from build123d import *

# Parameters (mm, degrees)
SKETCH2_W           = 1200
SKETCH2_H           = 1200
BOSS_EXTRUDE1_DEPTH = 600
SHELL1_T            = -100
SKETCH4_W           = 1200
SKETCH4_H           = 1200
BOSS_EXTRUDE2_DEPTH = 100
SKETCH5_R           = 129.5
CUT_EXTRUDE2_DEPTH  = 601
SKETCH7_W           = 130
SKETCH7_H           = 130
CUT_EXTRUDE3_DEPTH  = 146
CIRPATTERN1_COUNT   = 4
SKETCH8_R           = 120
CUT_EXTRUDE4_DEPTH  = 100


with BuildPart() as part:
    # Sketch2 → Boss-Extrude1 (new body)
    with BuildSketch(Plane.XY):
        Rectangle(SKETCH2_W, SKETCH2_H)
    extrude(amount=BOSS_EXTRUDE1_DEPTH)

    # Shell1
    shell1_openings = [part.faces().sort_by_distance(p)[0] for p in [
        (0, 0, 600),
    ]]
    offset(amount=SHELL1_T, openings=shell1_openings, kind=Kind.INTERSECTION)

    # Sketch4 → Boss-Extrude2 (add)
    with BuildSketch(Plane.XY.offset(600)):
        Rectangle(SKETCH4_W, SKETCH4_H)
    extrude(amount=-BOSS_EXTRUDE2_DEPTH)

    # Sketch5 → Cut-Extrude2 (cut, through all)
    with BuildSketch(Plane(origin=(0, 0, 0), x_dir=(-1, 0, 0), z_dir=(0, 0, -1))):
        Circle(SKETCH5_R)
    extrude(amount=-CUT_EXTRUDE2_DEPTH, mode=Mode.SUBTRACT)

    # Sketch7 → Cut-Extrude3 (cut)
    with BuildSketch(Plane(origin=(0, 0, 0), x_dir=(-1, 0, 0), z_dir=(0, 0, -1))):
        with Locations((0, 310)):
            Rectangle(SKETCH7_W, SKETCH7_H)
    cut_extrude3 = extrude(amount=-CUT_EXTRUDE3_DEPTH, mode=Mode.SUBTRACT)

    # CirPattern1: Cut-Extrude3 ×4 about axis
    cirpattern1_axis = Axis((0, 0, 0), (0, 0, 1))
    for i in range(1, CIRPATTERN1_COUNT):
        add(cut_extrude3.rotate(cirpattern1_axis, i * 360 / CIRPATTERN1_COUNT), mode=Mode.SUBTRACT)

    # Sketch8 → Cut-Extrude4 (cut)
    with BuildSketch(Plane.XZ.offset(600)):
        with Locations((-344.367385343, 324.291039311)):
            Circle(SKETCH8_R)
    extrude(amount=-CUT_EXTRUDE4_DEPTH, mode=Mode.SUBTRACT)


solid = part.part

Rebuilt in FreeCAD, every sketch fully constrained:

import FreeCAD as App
import Part
import Sketcher

V = App.Vector


def faces_at(feature, points):
    """Names of the faces that lie closest to the given points."""
    faces = feature.Shape.Faces
    near = lambda p: min(range(len(faces)), key=lambda i: faces[i].distToShape(Part.Vertex(*p))[0])
    return sorted({f"Face{near(p) + 1}" for p in points})

doc = App.newDocument("Part")
body = doc.addObject("PartDesign::Body", "Body")

# Sketch on XY plane
sketch1 = body.newObject("Sketcher::SketchObject", "Sketch")
sketch1.AttachmentSupport = (doc.getObject("XY_Plane"), [""])
sketch1.MapMode = "FlatFace"
sketch1.addGeometry(Part.LineSegment(V(-600, 600, 0), V(-600, -600, 0)), False)
sketch1.addGeometry(Part.LineSegment(V(-600, -600, 0), V(600, -600, 0)), False)
sketch1.addGeometry(Part.LineSegment(V(600, -600, 0), V(600, 600, 0)), False)
sketch1.addGeometry(Part.LineSegment(V(600, 600, 0), V(-600, 600, 0)), False)
sketch1.addConstraint(Sketcher.Constraint("Coincident", 0, 2, 1, 1))
sketch1.addConstraint(Sketcher.Constraint("Coincident", 1, 2, 2, 1))
sketch1.addConstraint(Sketcher.Constraint("Coincident", 2, 2, 3, 1))
sketch1.addConstraint(Sketcher.Constraint("Coincident", 3, 2, 0, 1))
sketch1.addConstraint(Sketcher.Constraint("Vertical", 0))
sketch1.addConstraint(Sketcher.Constraint("Horizontal", 1))
sketch1.addConstraint(Sketcher.Constraint("Vertical", 2))
sketch1.addConstraint(Sketcher.Constraint("Horizontal", 3))
sketch1.addConstraint(Sketcher.Constraint("Symmetric", 0, 2, 2, 2, -1, 1))
sketch1.addConstraint(Sketcher.Constraint("Equal", 3, 0))
sketch1.addConstraint(Sketcher.Constraint("DistanceX", 1, 1, 1, 2, 1200.0))
pad1 = body.newObject("PartDesign::Pad", "Pad")
pad1.Profile = sketch1
pad1.Length = 600
doc.recompute()

thickness = body.newObject("PartDesign::Thickness", "Thickness")
thickness.Base = (pad1, faces_at(pad1, [(0, 0, 600)]))
thickness.Value = 100
thickness.Reversed = True
thickness.Join = "Intersection"

# Sketch on XY plane
sketch2 = body.newObject("Sketcher::SketchObject", "Sketch001")
sketch2.AttachmentSupport = (doc.getObject("XY_Plane"), [""])
sketch2.MapMode = "FlatFace"
sketch2.AttachmentOffset = App.Placement(V(0, 0, 600), App.Rotation())
sketch2.addGeometry(Part.LineSegment(V(-600, 600, 0), V(-600, -600, 0)), False)
sketch2.addGeometry(Part.LineSegment(V(-600, -600, 0), V(600, -600, 0)), False)
sketch2.addGeometry(Part.LineSegment(V(600, -600, 0), V(600, 600, 0)), False)
sketch2.addGeometry(Part.LineSegment(V(600, 600, 0), V(-600, 600, 0)), False)
sketch2.addConstraint(Sketcher.Constraint("Coincident", 0, 2, 1, 1))
sketch2.addConstraint(Sketcher.Constraint("Coincident", 1, 2, 2, 1))
sketch2.addConstraint(Sketcher.Constraint("Coincident", 2, 2, 3, 1))
sketch2.addConstraint(Sketcher.Constraint("Coincident", 3, 2, 0, 1))
sketch2.addConstraint(Sketcher.Constraint("Vertical", 0))
sketch2.addConstraint(Sketcher.Constraint("Horizontal", 1))
sketch2.addConstraint(Sketcher.Constraint("Vertical", 2))
sketch2.addConstraint(Sketcher.Constraint("Horizontal", 3))
sketch2.addConstraint(Sketcher.Constraint("Symmetric", 0, 2, 2, 2, -1, 1))
sketch2.addConstraint(Sketcher.Constraint("Equal", 3, 0))
sketch2.addConstraint(Sketcher.Constraint("DistanceX", 1, 1, 1, 2, 1200.0))
pad2 = body.newObject("PartDesign::Pad", "Pad001")
pad2.Profile = sketch2
pad2.Length = 100
pad2.Reversed = True

# Sketch on XY plane
sketch3 = body.newObject("Sketcher::SketchObject", "Sketch002")
sketch3.AttachmentSupport = (doc.getObject("XY_Plane"), [""])
sketch3.MapMode = "FlatFace"
sketch3.addGeometry(Part.Circle(V(0, 0, 0), V(0, 0, 1), 129.5), False)
sketch3.addConstraint(Sketcher.Constraint("Coincident", 0, 3, -1, 1))
sketch3.addConstraint(Sketcher.Constraint("Diameter", 0, 259.0))
pocket1 = body.newObject("PartDesign::Pocket", "Pocket")
pocket1.Profile = sketch3
pocket1.Type = "ThroughAll"
pocket1.Reversed = True

# Sketch on XY plane
sketch4 = body.newObject("Sketcher::SketchObject", "Sketch003")
sketch4.AttachmentSupport = (doc.getObject("XY_Plane"), [""])
sketch4.MapMode = "FlatFace"
sketch4.addGeometry(Part.LineSegment(V(65, 375, 0), V(65, 245, 0)), False)
sketch4.addGeometry(Part.LineSegment(V(65, 245, 0), V(-65, 245, 0)), False)
sketch4.addGeometry(Part.LineSegment(V(-65, 245, 0), V(-65, 375, 0)), False)
sketch4.addGeometry(Part.LineSegment(V(-65, 375, 0), V(65, 375, 0)), False)
sketch4.addConstraint(Sketcher.Constraint("Coincident", 0, 2, 1, 1))
sketch4.addConstraint(Sketcher.Constraint("Coincident", 1, 2, 2, 1))
sketch4.addConstraint(Sketcher.Constraint("Coincident", 2, 2, 3, 1))
sketch4.addConstraint(Sketcher.Constraint("Coincident", 3, 2, 0, 1))
sketch4.addConstraint(Sketcher.Constraint("Vertical", 0))
sketch4.addConstraint(Sketcher.Constraint("Horizontal", 1))
sketch4.addConstraint(Sketcher.Constraint("Vertical", 2))
sketch4.addConstraint(Sketcher.Constraint("Horizontal", 3))
sketch4.addConstraint(Sketcher.Constraint("Equal", 3, 0))
sketch4.addConstraint(Sketcher.Constraint("DistanceX", 1, 2, 1, 1, 130.0))
sketch4.addConstraint(Sketcher.Constraint("DistanceX", -1, 1, 0, 2, 65.0))
sketch4.addConstraint(Sketcher.Constraint("DistanceY", -1, 1, 0, 2, 245.0))
pocket2 = body.newObject("PartDesign::Pocket", "Pocket001")
pocket2.Profile = sketch4
pocket2.Length = 146
pocket2.Reversed = True
doc.recompute()

polarpattern = body.newObject("PartDesign::PolarPattern", "PolarPattern")
polarpattern.Originals = [pocket2]
polarpattern.Axis = (doc.getObject("Z_Axis"), [""])
polarpattern.Angle = 360
polarpattern.Occurrences = 4
body.Tip = polarpattern

# Sketch on XZ plane
sketch5 = body.newObject("Sketcher::SketchObject", "Sketch004")
sketch5.AttachmentSupport = (doc.getObject("XZ_Plane"), [""])
sketch5.MapMode = "FlatFace"
sketch5.AttachmentOffset = App.Placement(V(0, 0, 600), App.Rotation())
sketch5.addGeometry(Part.Circle(V(-344.367385, 324.291039, 0), V(0, 0, 1), 120), False)
sketch5.addConstraint(Sketcher.Constraint("Diameter", 0, 240.0))
sketch5.addConstraint(Sketcher.Constraint("DistanceY", -1, 1, 0, 3, 324.291039))
sketch5.addConstraint(Sketcher.Constraint("DistanceX", 0, 3, -1, 1, 344.367385))
pocket3 = body.newObject("PartDesign::Pocket", "Pocket002")
pocket3.Profile = sketch5
pocket3.Length = 100

doc.recompute()
